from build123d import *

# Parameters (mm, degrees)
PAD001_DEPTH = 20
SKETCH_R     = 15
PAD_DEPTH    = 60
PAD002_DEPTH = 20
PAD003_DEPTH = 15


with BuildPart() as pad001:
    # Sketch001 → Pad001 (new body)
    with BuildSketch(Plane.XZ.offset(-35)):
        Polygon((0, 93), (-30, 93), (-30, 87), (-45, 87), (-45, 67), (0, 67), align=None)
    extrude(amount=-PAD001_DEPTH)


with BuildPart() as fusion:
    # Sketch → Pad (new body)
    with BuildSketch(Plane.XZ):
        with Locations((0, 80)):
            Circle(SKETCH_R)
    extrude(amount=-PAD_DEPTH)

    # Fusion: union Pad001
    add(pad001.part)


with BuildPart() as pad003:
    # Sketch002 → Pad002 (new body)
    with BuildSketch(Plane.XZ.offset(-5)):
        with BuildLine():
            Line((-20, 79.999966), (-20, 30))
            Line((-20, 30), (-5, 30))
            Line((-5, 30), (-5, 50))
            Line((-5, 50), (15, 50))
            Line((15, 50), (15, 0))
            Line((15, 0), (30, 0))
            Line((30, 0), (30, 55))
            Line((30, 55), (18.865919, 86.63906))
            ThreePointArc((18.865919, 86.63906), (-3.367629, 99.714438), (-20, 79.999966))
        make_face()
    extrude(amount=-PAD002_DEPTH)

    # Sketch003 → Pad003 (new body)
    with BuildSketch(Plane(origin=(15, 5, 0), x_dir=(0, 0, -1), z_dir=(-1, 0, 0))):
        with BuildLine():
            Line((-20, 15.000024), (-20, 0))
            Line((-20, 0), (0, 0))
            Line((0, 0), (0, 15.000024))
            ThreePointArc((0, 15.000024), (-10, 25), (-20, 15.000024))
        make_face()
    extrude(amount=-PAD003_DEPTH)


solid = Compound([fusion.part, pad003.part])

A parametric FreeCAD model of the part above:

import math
import FreeCAD as App
import Part
import Sketcher

V = App.Vector


def add_polygon(sketch, points):
    """Adds a closed chain of lines whose ends are joined by coincident constraints."""
    first, n = sketch.GeometryCount, len(points)
    for a, b in zip(points, points[1:] + points[:1]):
        sketch.addGeometry(Part.LineSegment(App.Vector(*a, 0), App.Vector(*b, 0)), False)
    for i in range(n):
        sketch.addConstraint(Sketcher.Constraint("Coincident", first + i, 2, first + (i + 1) % n, 1))

doc = App.newDocument("Part")
body = doc.addObject("PartDesign::Body", "Body")

sketch1 = doc.addObject("Sketcher::SketchObject", "Sketch")
body.addObject(sketch1)
sketch1.AttachmentSupport = (doc.XZ_Plane, [""])
sketch1.MapMode = "FlatFace"
sketch1.AttachmentOffset = App.Placement(V(0, 0, -35), App.Rotation())
add_polygon(sketch1, [(0, 93), (-30, 93), (-30, 87), (-45, 87), (-45, 67), (0, 67)])
sketch1.addConstraint(Sketcher.Constraint("Horizontal", 0))
sketch1.addConstraint(Sketcher.Constraint("Vertical", 1))
sketch1.addConstraint(Sketcher.Constraint("Horizontal", 2))
sketch1.addConstraint(Sketcher.Constraint("Vertical", 3))
sketch1.addConstraint(Sketcher.Constraint("Horizontal", 4))
sketch1.addConstraint(Sketcher.Constraint("Vertical", 5))
sketch1.addConstraint(Sketcher.Constraint("PointOnObject", 4, 2, -2))
sketch1.addConstraint(Sketcher.Constraint("DistanceX", 0, 2, 0, 1, 30.0))
sketch1.addConstraint(Sketcher.Constraint("DistanceX", 2, 2, 2, 1, 15.0))
sketch1.addConstraint(Sketcher.Constraint("DistanceY", 1, 2, 1, 1, 6.0))
sketch1.addConstraint(Sketcher.Constraint("DistanceY", 3, 2, 3, 1, 20.0))
sketch1.addConstraint(Sketcher.Constraint("DistanceY", -1, 1, 0, 2, 93.0))
pad1 = doc.addObject("PartDesign::Pad", "Pad")
body.addObject(pad1)
pad1.Profile = sketch1
pad1.Length = 20
pad1.Reversed = True
body2 = doc.addObject("PartDesign::Body", "Body001")

sketch2 = doc.addObject("Sketcher::SketchObject", "Sketch001")
body2.addObject(sketch2)
sketch2.AttachmentSupport = (doc.getObject("XZ_Plane001"), [""])
sketch2.MapMode = "FlatFace"
sketch2.addGeometry(Part.Circle(V(0, 80, 0), V(0, 0, 1), 15), False)
sketch2.addConstraint(Sketcher.Constraint("PointOnObject", 0, 3, -2))
sketch2.addConstraint(Sketcher.Constraint("Diameter", 0, 30.0))
sketch2.addConstraint(Sketcher.Constraint("DistanceY", -1, 1, 0, 3, 80.0))
pad2 = doc.addObject("PartDesign::Pad", "Pad001")
body2.addObject(pad2)
pad2.Profile = sketch2
pad2.Length = 60
pad2.Reversed = True
doc.recompute()

boolean = doc.addObject("PartDesign::Boolean", "Boolean")
body2.addObject(boolean)
boolean.Type = "Fuse"
boolean.addObjects([body])
body3 = doc.addObject("PartDesign::Body", "Body002")

sketch3 = doc.addObject("Sketcher::SketchObject", "Sketch002")
body3.addObject(sketch3)
sketch3.AttachmentSupport = (doc.getObject("XZ_Plane002"), [""])
sketch3.MapMode = "FlatFace"
sketch3.AttachmentOffset = App.Placement(V(0, 0, -5), App.Rotation())
sketch3.addGeometry(Part.LineSegment(V(-20, 79.999966, 0), V(-20, 30, 0)), False)
sketch3.addGeometry(Part.LineSegment(V(-20, 30, 0), V(-5, 30, 0)), False)
sketch3.addGeometry(Part.LineSegment(V(-5, 30, 0), V(-5, 50, 0)), False)
sketch3.addGeometry(Part.LineSegment(V(-5, 50, 0), V(15, 50, 0)), False)
sketch3.addGeometry(Part.LineSegment(V(15, 50, 0), V(15, 0, 0)), False)
sketch3.addGeometry(Part.LineSegment(V(15, 0, 0), V(30, 0, 0)), False)
sketch3.addGeometry(Part.LineSegment(V(30, 0, 0), V(30, 55, 0)), False)
sketch3.addGeometry(Part.LineSegment(V(30, 55, 0), V(18.865919, 86.63906, 0)), False)
sketch3.addGeometry(Part.ArcOfCircle(Part.Circle(V(0, 80, 0), V(0, 0, 1), 20), math.radians(19.387359), math.radians(180.000096)), False)
sketch3.addConstraint(Sketcher.Constraint("Coincident", 0, 2, 1, 1))
sketch3.addConstraint(Sketcher.Constraint("Coincident", 1, 2, 2, 1))
sketch3.addConstraint(Sketcher.Constraint("Coincident", 2, 2, 3, 1))
sketch3.addConstraint(Sketcher.Constraint("Coincident", 3, 2, 4, 1))
sketch3.addConstraint(Sketcher.Constraint("Coincident", 4, 2, 5, 1))
sketch3.addConstraint(Sketcher.Constraint("Coincident", 5, 2, 6, 1))
sketch3.addConstraint(Sketcher.Constraint("Coincident", 6, 2, 7, 1))
sketch3.addConstraint(Sketcher.Constraint("Coincident", 7, 2, 8, 1))
sketch3.addConstraint(Sketcher.Constraint("Coincident", 8, 2, 0, 1))
sketch3.addConstraint(Sketcher.Constraint("Vertical", 0))
sketch3.addConstraint(Sketcher.Constraint("Horizontal", 1))
sketch3.addConstraint(Sketcher.Constraint("Vertical", 2))
sketch3.addConstraint(Sketcher.Constraint("Horizontal", 3))
sketch3.addConstraint(Sketcher.Constraint("Vertical", 4))
sketch3.addConstraint(Sketcher.Constraint("Horizontal", 5))
sketch3.addConstraint(Sketcher.Constraint("Vertical", 6))
sketch3.addConstraint(Sketcher.Constraint("PointOnObject", 8, 3, -2))
sketch3.addConstraint(Sketcher.Constraint("PointOnObject", 4, 2, -1))
sketch3.addConstraint(Sketcher.Constraint("Radius", 8, 20.0))
sketch3.addConstraint(Sketcher.Constraint("DistanceX", 1, 1, 1, 2, 15.0))
sketch3.addConstraint(Sketcher.Constraint("DistanceX", 3, 1, 3, 2, 20.0))
sketch3.addConstraint(Sketcher.Constraint("DistanceX", 5, 1, 5, 2, 15.0))
sketch3.addConstraint(Sketcher.Constraint("DistanceY", 2, 1, 2, 2, 20.0))
sketch3.addConstraint(Sketcher.Constraint("DistanceY", 4, 2, 4, 1, 50.0))
sketch3.addConstraint(Sketcher.Constraint("DistanceY", 6, 1, 6, 2, 55.0))
sketch3.addConstraint(Sketcher.Constraint("DistanceY", -1, 1, 8, 3, 80.0))
sketch3.addConstraint(Sketcher.Constraint("Distance", 7, 33.540988))
sketch3.addConstraint(Sketcher.Constraint("DistanceY", 0, 2, 0, 1, 49.999966))
pad3 = doc.addObject("PartDesign::Pad", "Pad002")
body3.addObject(pad3)
pad3.Profile = sketch3
pad3.Length = 20
pad3.Reversed = True

sketch4 = doc.addObject("Sketcher::SketchObject", "Sketch003")
body3.addObject(sketch4)
sketch4.AttachmentSupport = (doc.getObject("YZ_Plane002"), [""])
sketch4.MapMode = "FlatFace"
sketch4.AttachmentOffset = App.Placement(V(0, 0, 15), App.Rotation())
sketch4.addGeometry(Part.LineSegment(V(-10.000024, 20, 0), V(5, 20, 0)), False)
sketch4.addGeometry(Part.LineSegment(V(5, 20, 0), V(5, 0, 0)), False)
sketch4.addGeometry(Part.LineSegment(V(5, 0, 0), V(-10.000024, 0, 0)), False)
sketch4.addGeometry(Part.ArcOfCircle(Part.Circle(V(-10, 10, 0), V(0, 0, 1), 10), math.radians(90.000138), math.radians(269.999862)), False)
sketch4.addConstraint(Sketcher.Constraint("Coincident", 0, 2, 1, 1))
sketch4.addConstraint(Sketcher.Constraint("Coincident", 1, 2, 2, 1))
sketch4.addConstraint(Sketcher.Constraint("Coincident", 2, 2, 3, 2))
sketch4.addConstraint(Sketcher.Constraint("Coincident", 3, 1, 0, 1))
sketch4.addConstraint(Sketcher.Constraint("Horizontal", 0))
sketch4.addConstraint(Sketcher.Constraint("Vertical", 1))
sketch4.addConstraint(Sketcher.Constraint("Horizontal", 2))
sketch4.addConstraint(Sketcher.Constraint("PointOnObject", 1, 2, -1))
sketch4.addConstraint(Sketcher.Constraint("Vertical", 2, 2, 3, 1))
sketch4.addConstraint(Sketcher.Constraint("Radius", 3, 10.0))
sketch4.addConstraint(Sketcher.Constraint("DistanceX", 3, 3, -1, 1, 10.0))
sketch4.addConstraint(Sketcher.Constraint("DistanceX", -1, 1, 0, 2, 5.0))
sketch4.addConstraint(Sketcher.Constraint("DistanceX", 0, 1, 0, 2, 15.000024))
pad4 = doc.addObject("PartDesign::Pad", "Pad003")
body3.addObject(pad4)
pad4.Profile = sketch4
pad4.Length = 15

doc.recompute()
